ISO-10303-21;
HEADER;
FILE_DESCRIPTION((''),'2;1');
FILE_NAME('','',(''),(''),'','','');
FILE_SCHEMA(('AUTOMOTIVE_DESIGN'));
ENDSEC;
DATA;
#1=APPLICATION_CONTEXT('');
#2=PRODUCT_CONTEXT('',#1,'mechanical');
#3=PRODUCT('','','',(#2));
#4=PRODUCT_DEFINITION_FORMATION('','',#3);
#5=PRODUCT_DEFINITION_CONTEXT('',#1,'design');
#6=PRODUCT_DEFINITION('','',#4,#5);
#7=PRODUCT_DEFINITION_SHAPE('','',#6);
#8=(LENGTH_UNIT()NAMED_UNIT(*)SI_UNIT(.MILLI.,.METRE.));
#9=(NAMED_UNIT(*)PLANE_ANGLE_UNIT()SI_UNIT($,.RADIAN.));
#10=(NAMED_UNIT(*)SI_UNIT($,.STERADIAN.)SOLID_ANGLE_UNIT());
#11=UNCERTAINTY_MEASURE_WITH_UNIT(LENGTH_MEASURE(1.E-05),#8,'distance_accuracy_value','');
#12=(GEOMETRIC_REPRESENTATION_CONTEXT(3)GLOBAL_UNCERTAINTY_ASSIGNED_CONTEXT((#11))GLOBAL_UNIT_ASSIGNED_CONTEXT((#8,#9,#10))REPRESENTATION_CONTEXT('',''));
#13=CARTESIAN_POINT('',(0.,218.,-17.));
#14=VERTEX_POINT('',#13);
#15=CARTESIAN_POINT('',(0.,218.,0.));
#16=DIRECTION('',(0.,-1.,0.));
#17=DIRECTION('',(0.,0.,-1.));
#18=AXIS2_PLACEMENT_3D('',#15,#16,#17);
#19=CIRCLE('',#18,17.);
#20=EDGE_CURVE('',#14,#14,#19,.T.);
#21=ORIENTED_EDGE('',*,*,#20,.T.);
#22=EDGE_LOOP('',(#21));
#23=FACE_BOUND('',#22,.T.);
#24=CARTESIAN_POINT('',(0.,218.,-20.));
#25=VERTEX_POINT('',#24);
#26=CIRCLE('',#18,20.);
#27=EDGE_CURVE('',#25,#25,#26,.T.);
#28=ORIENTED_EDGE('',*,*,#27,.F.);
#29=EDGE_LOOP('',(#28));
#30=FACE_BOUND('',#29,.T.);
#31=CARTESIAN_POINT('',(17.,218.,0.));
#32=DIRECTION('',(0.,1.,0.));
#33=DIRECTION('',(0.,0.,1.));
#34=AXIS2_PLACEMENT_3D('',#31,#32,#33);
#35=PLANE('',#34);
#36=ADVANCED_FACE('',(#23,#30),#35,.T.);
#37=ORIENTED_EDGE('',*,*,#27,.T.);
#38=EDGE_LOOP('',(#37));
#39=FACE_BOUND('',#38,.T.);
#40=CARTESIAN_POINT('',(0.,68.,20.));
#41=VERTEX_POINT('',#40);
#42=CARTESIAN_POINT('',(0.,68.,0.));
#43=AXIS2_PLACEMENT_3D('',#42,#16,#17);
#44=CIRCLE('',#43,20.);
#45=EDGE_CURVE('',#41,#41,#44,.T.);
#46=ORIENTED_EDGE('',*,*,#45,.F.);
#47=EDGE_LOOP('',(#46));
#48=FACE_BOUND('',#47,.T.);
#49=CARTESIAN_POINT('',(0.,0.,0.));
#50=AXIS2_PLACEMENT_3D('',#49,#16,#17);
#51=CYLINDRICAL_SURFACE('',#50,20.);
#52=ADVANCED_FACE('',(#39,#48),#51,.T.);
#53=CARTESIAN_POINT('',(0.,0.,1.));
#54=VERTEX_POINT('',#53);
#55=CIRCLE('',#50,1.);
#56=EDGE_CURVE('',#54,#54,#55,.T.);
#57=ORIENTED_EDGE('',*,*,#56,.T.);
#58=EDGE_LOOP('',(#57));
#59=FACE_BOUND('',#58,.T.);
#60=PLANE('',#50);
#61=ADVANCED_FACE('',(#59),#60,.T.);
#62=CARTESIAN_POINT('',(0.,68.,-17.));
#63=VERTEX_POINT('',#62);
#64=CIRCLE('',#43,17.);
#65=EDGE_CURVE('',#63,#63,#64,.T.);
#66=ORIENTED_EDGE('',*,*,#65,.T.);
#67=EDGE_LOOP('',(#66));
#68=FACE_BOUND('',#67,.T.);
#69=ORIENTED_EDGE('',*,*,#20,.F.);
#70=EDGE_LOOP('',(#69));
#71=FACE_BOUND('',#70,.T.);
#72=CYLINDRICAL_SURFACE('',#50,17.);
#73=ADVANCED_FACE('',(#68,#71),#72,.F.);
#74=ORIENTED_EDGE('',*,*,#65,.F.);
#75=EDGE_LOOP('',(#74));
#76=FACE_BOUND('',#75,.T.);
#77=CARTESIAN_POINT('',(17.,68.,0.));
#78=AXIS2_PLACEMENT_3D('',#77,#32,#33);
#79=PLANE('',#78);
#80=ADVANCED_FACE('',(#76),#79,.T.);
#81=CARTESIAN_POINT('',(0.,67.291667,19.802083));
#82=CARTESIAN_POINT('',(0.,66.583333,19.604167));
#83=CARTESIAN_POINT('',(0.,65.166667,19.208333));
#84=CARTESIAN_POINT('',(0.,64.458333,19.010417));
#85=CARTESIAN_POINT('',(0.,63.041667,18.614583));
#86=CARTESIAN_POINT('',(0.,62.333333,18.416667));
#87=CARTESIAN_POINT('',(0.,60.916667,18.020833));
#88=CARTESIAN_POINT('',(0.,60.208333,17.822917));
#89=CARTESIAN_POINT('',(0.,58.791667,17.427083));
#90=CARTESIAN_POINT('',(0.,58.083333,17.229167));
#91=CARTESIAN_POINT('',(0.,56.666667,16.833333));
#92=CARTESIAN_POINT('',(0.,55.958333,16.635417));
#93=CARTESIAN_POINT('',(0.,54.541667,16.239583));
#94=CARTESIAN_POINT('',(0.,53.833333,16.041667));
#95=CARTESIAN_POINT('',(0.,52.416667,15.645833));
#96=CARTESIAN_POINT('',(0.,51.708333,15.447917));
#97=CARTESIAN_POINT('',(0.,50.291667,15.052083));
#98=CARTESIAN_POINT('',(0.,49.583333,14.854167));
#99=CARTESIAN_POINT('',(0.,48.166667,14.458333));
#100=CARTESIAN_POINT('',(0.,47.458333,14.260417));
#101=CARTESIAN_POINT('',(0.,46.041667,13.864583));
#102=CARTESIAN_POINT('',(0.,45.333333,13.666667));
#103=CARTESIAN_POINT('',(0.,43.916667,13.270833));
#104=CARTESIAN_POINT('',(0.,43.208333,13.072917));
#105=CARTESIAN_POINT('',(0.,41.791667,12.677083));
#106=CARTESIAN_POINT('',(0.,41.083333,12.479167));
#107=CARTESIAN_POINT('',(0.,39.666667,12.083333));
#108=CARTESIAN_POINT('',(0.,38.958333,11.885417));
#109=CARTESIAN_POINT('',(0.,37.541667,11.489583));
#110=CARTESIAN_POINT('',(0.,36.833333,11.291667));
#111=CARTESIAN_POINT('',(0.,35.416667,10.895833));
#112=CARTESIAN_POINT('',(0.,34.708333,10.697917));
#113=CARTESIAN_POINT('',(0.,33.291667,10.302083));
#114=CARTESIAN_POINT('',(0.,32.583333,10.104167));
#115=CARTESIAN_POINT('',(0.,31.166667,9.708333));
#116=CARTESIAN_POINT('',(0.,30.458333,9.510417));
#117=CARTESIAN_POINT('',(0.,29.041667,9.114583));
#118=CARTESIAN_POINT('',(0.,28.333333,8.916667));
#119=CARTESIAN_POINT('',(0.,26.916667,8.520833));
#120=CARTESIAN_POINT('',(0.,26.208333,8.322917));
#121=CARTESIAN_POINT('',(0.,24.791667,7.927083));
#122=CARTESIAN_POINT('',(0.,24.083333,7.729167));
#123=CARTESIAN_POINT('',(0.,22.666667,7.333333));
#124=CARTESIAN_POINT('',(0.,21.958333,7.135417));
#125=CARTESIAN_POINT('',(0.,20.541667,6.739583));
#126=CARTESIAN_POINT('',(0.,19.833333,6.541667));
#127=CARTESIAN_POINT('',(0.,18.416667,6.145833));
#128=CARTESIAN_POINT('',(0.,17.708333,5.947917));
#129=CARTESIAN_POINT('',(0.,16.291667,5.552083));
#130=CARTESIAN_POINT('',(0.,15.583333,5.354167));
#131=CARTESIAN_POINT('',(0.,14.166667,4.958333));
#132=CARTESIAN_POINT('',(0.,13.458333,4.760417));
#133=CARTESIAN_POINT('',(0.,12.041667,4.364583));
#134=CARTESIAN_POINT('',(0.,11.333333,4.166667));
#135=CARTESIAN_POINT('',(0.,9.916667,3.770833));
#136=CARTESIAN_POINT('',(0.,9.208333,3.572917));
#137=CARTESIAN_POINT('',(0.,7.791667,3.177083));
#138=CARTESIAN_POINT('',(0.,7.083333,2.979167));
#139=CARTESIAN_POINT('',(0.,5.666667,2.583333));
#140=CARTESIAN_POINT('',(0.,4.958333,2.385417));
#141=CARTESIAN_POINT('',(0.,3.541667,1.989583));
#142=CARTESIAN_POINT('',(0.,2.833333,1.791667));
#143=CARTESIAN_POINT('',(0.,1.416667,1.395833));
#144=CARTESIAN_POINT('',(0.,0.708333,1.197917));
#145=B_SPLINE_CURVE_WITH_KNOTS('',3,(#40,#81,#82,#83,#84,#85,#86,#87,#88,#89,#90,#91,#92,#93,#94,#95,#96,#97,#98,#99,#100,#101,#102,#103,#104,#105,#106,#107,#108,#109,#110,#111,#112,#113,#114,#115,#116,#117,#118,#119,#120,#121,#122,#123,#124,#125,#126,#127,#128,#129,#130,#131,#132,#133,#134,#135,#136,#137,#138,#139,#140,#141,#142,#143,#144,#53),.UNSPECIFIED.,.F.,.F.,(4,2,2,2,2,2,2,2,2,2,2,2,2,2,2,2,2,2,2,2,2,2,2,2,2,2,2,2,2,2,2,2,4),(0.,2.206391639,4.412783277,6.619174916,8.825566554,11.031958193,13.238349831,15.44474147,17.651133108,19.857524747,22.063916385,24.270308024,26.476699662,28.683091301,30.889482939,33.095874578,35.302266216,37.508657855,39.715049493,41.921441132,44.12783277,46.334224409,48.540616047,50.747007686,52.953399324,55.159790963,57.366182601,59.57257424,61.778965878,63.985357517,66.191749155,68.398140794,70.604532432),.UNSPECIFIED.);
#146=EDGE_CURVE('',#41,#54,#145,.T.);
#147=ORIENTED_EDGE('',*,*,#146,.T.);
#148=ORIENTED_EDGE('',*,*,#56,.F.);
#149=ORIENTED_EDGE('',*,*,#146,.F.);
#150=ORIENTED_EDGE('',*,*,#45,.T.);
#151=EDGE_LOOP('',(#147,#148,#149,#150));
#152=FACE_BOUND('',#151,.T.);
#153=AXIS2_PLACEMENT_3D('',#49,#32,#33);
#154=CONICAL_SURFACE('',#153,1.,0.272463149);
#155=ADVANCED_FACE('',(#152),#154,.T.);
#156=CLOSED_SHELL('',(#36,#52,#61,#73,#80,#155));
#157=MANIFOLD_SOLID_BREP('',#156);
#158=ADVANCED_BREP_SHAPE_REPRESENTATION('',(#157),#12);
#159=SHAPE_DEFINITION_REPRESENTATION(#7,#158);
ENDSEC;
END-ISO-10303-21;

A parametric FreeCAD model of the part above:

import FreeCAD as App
import Part
import Sketcher
from FreeCAD import Vector
Q = App.Units.Quantity

doc = App.newDocument("Part")
body = doc.addObject("PartDesign::Body", "Body")

sketch1 = doc.addObject("Sketcher::SketchObject", "Sketch")
body.addObject(sketch1)
sketch1.AttachmentSupport = (doc.XY_Plane, [""])
sketch1.MapMode = "FlatFace"
sketch1.addGeometry(Part.LineSegment(Vector(0, 0, 0), Vector(1, 0, 0)), False)
sketch1.addGeometry(Part.LineSegment(Vector(1, 0, 0), Vector(20, 68, 0)), False)
sketch1.addGeometry(Part.LineSegment(Vector(20, 68, 0), Vector(20, 218, 0)), False)
sketch1.addGeometry(Part.LineSegment(Vector(20, 218, 0), Vector(17, 218, 0)), False)
sketch1.addGeometry(Part.LineSegment(Vector(17, 218, 0), Vector(17, 68, 0)), False)
sketch1.addGeometry(Part.LineSegment(Vector(17, 68, 0), Vector(0, 68, 0)), False)
sketch1.addGeometry(Part.LineSegment(Vector(0, 68, 0), Vector(0, 0, 0)), False)
sketch1.addConstraint(Sketcher.Constraint("Coincident", 0, 2, 1, 1))
sketch1.addConstraint(Sketcher.Constraint("Coincident", 1, 2, 2, 1))
sketch1.addConstraint(Sketcher.Constraint("Coincident", 2, 2, 3, 1))
sketch1.addConstraint(Sketcher.Constraint("Coincident", 3, 2, 4, 1))
sketch1.addConstraint(Sketcher.Constraint("Coincident", 4, 2, 5, 1))
sketch1.addConstraint(Sketcher.Constraint("Coincident", 5, 2, 6, 1))
sketch1.addConstraint(Sketcher.Constraint("Coincident", 6, 2, 0, 1))
sketch1.addConstraint(Sketcher.Constraint("Horizontal", 0))
sketch1.addConstraint(Sketcher.Constraint("Vertical", 2))
sketch1.addConstraint(Sketcher.Constraint("Horizontal", 3))
sketch1.addConstraint(Sketcher.Constraint("Vertical", 4))
sketch1.addConstraint(Sketcher.Constraint("Horizontal", 5))
sketch1.addConstraint(Sketcher.Constraint("Vertical", 6))
sketch1.addConstraint(Sketcher.Constraint("Coincident", 6, 2, -1, 1))
sketch1.addConstraint(Sketcher.Constraint("Horizontal", 1, 2, 4, 2))
sketch1.addConstraint(Sketcher.Constraint("DistanceX", 0, 1, 0, 2, Q("1 mm")))
sketch1.addConstraint(Sketcher.Constraint("DistanceX", 3, 2, 3, 1, Q("3 mm")))
sketch1.addConstraint(Sketcher.Constraint("DistanceX", 5, 2, 5, 1, Q("17 mm")))
sketch1.addConstraint(Sketcher.Constraint("DistanceY", 2, 1, 2, 2, Q("150 mm")))
sketch1.addConstraint(Sketcher.Constraint("DistanceY", 6, 2, 6, 1, Q("68 mm")))
revolution = doc.addObject("PartDesign::Revolution", "Revolution")
body.addObject(revolution)
revolution.Profile = sketch1
revolution.ReferenceAxis = (sketch1, ["V_Axis"])
revolution.Angle = 360

doc.recompute()
